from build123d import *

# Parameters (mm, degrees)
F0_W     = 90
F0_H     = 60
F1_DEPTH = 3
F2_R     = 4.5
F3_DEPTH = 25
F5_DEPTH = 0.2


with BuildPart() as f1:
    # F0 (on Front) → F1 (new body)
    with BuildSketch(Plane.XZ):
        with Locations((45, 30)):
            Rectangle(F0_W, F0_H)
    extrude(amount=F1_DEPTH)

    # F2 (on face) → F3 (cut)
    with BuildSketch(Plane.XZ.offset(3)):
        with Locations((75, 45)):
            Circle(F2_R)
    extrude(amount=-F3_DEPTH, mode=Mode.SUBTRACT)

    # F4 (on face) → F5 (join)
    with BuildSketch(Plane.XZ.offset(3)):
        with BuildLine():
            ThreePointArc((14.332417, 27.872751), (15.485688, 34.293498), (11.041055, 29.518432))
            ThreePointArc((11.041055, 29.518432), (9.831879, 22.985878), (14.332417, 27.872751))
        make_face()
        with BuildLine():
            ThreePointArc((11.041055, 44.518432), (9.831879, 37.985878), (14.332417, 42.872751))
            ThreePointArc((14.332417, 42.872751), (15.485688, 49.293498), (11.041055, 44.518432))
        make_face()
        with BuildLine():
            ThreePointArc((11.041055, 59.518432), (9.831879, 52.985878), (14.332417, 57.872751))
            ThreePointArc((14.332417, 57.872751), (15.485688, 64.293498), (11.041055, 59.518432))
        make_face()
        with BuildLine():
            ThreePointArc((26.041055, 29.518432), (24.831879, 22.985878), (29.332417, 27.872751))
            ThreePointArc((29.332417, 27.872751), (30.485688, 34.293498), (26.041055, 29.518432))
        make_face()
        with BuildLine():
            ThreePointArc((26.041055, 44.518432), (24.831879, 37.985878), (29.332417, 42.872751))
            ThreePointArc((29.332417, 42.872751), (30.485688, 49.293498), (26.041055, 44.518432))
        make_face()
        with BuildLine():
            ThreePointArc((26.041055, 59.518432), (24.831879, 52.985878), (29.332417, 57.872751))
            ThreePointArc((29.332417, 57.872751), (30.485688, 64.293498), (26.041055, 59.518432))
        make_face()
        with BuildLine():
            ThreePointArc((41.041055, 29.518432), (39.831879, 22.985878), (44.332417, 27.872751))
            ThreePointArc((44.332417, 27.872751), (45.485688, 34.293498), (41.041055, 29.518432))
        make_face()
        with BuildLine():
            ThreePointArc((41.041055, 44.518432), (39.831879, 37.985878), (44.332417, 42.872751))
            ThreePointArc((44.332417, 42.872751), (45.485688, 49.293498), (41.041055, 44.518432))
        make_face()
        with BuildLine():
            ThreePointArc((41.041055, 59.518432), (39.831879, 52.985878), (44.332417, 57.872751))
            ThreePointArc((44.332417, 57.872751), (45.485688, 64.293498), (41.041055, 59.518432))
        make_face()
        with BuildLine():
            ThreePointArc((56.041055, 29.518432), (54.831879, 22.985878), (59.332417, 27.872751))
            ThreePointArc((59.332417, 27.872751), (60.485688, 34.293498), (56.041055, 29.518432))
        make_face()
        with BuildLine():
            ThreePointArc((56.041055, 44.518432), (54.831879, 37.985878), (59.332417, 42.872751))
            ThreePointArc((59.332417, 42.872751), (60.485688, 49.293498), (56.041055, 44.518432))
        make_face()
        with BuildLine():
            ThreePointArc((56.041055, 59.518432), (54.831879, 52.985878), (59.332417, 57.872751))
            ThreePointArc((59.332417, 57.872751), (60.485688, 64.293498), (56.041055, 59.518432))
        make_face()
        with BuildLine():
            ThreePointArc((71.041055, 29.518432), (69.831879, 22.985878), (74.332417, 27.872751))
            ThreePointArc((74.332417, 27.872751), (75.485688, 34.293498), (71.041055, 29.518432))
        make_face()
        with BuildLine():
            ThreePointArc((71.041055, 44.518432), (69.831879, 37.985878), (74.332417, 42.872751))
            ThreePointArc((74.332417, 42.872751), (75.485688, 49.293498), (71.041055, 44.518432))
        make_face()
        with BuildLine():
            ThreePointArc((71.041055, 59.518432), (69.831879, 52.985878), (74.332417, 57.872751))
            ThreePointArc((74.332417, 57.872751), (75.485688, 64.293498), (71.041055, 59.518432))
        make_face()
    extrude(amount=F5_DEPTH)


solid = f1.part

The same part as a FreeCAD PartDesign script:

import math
import FreeCAD as App
import Part
import Sketcher
from FreeCAD import Vector

doc = App.newDocument("Part")
body = doc.addObject("PartDesign::Body", "Body")

# Sketch on XZ plane
sketch1 = doc.addObject("Sketcher::SketchObject", "Sketch")
body.addObject(sketch1)
sketch1.AttachmentSupport = (doc.XZ_Plane, [""])
sketch1.MapMode = "FlatFace"
sketch1.addGeometry([
    Part.LineSegment(Vector(0, 60, 0), Vector(0, 0, 0)),
    Part.LineSegment(Vector(0, 0, 0), Vector(90, 0, 0)),
    Part.LineSegment(Vector(90, 0, 0), Vector(90, 60, 0)),
    Part.LineSegment(Vector(90, 60, 0), Vector(0, 60, 0)),
], False)
sketch1.addConstraint([
    Sketcher.Constraint("Coincident", 0, 2, 1, 1),
    Sketcher.Constraint("Coincident", 1, 2, 2, 1),
    Sketcher.Constraint("Coincident", 2, 2, 3, 1),
    Sketcher.Constraint("Coincident", 3, 2, 0, 1),
    Sketcher.Constraint("Vertical", 0),
    Sketcher.Constraint("Horizontal", 1),
    Sketcher.Constraint("Vertical", 2),
    Sketcher.Constraint("Horizontal", 3),
    Sketcher.Constraint("Coincident", 0, 2, -1, 1),
    Sketcher.Constraint("DistanceX", 1, 1, 1, 2, 90.0),
    Sketcher.Constraint("DistanceY", 0, 2, 0, 1, 60.0),
])
pad1 = doc.addObject("PartDesign::Pad", "Pad")
body.addObject(pad1)
pad1.Profile = sketch1
pad1.Length = 3

# Sketch on XZ plane
sketch2 = doc.addObject("Sketcher::SketchObject", "Sketch001")
body.addObject(sketch2)
sketch2.AttachmentSupport = (doc.XZ_Plane, [""])
sketch2.MapMode = "FlatFace"
sketch2.AttachmentOffset = App.Placement(Vector(0, 0, 3), App.Rotation())
sketch2.addGeometry(Part.Circle(Vector(75, 45, 0), Vector(0, 0, 1), 4.5), False)
sketch2.addConstraint([
    Sketcher.Constraint("Diameter", 0, 9.0),
    Sketcher.Constraint("DistanceX", -1, 1, 0, 3, 75.0),
    Sketcher.Constraint("DistanceY", -1, 1, 0, 3, 45.0),
])
pocket1 = doc.addObject("PartDesign::Pocket", "Pocket")
body.addObject(pocket1)
pocket1.Profile = sketch2
pocket1.Length = 25

# Sketch on XZ plane
sketch3 = doc.addObject("Sketcher::SketchObject", "Sketch002")
body.addObject(sketch3)
sketch3.AttachmentSupport = (doc.XZ_Plane, [""])
sketch3.MapMode = "FlatFace"
sketch3.AttachmentOffset = App.Placement(Vector(0, 0, 3), App.Rotation())
sketch3.addGeometry([
    Part.ArcOfCircle(Part.Circle(Vector(14, 31.3, 0), Vector(0, 0, 1), 3.4), math.radians(-84), math.radians(211)),  # 0
    Part.ArcOfCircle(Part.Circle(Vector(11.4, 26.1, 0), Vector(0, 0, 1), 3.5), math.radians(96), math.radians(391)),  # 1
    Part.ArcOfCircle(Part.Circle(Vector(11.4, 41.1, 0), Vector(0, 0, 1), 3.5), math.radians(96), math.radians(391)),  # 2
    Part.ArcOfCircle(Part.Circle(Vector(14, 46.3, 0), Vector(0, 0, 1), 3.4), math.radians(-84), math.radians(211)),  # 3
    Part.ArcOfCircle(Part.Circle(Vector(11.4, 56.1, 0), Vector(0, 0, 1), 3.5), math.radians(96), math.radians(391)),  # 4
    Part.ArcOfCircle(Part.Circle(Vector(14, 61.3, 0), Vector(0, 0, 1), 3.4), math.radians(-84), math.radians(211)),  # 5
    Part.ArcOfCircle(Part.Circle(Vector(26.4, 26.1, 0), Vector(0, 0, 1), 3.5), math.radians(96), math.radians(391)),  # 6
    Part.ArcOfCircle(Part.Circle(Vector(29, 31.3, 0), Vector(0, 0, 1), 3.4), math.radians(-84), math.radians(211)),  # 7
    Part.ArcOfCircle(Part.Circle(Vector(26.4, 41.1, 0), Vector(0, 0, 1), 3.5), math.radians(96), math.radians(391)),  # 8
    Part.ArcOfCircle(Part.Circle(Vector(29, 46.3, 0), Vector(0, 0, 1), 3.4), math.radians(-84), math.radians(211)),  # 9
    Part.ArcOfCircle(Part.Circle(Vector(26.4, 56.1, 0), Vector(0, 0, 1), 3.5), math.radians(96), math.radians(391)),  # 10
    Part.ArcOfCircle(Part.Circle(Vector(29, 61.3, 0), Vector(0, 0, 1), 3.4), math.radians(-84), math.radians(211)),  # 11
    Part.ArcOfCircle(Part.Circle(Vector(41.4, 26.1, 0), Vector(0, 0, 1), 3.5), math.radians(96), math.radians(391)),  # 12
    Part.ArcOfCircle(Part.Circle(Vector(44, 31.3, 0), Vector(0, 0, 1), 3.4), math.radians(-84), math.radians(211)),  # 13
    Part.ArcOfCircle(Part.Circle(Vector(41.4, 41.1, 0), Vector(0, 0, 1), 3.5), math.radians(96), math.radians(391)),  # 14
    Part.ArcOfCircle(Part.Circle(Vector(44, 46.3, 0), Vector(0, 0, 1), 3.4), math.radians(-84), math.radians(211)),  # 15
    Part.ArcOfCircle(Part.Circle(Vector(41.4, 56.1, 0), Vector(0, 0, 1), 3.5), math.radians(96), math.radians(391)),  # 16
    Part.ArcOfCircle(Part.Circle(Vector(44, 61.3, 0), Vector(0, 0, 1), 3.4), math.radians(-84), math.radians(211)),  # 17
    Part.ArcOfCircle(Part.Circle(Vector(56.4, 26.1, 0), Vector(0, 0, 1), 3.5), math.radians(96), math.radians(391)),  # 18
    Part.ArcOfCircle(Part.Circle(Vector(59, 31.3, 0), Vector(0, 0, 1), 3.4), math.radians(-84), math.radians(211)),  # 19
    Part.ArcOfCircle(Part.Circle(Vector(56.4, 41.1, 0), Vector(0, 0, 1), 3.5), math.radians(96), math.radians(391)),  # 20
    Part.ArcOfCircle(Part.Circle(Vector(59, 46.3, 0), Vector(0, 0, 1), 3.4), math.radians(-84), math.radians(211)),  # 21
    Part.ArcOfCircle(Part.Circle(Vector(56.4, 56.1, 0), Vector(0, 0, 1), 3.5), math.radians(96), math.radians(391)),  # 22
    Part.ArcOfCircle(Part.Circle(Vector(59, 61.3, 0), Vector(0, 0, 1), 3.4), math.radians(-84), math.radians(211)),  # 23
    Part.ArcOfCircle(Part.Circle(Vector(71.4, 26.1, 0), Vector(0, 0, 1), 3.5), math.radians(96), math.radians(391)),  # 24
    Part.ArcOfCircle(Part.Circle(Vector(74, 31.3, 0), Vector(0, 0, 1), 3.4), math.radians(-84), math.radians(211)),  # 25
    Part.ArcOfCircle(Part.Circle(Vector(71.4, 41.1, 0), Vector(0, 0, 1), 3.5), math.radians(96), math.radians(391)),  # 26
    Part.ArcOfCircle(Part.Circle(Vector(74, 46.3, 0), Vector(0, 0, 1), 3.4), math.radians(-84), math.radians(211)),  # 27
    Part.ArcOfCircle(Part.Circle(Vector(71.4, 56.1, 0), Vector(0, 0, 1), 3.5), math.radians(96), math.radians(391)),  # 28
    Part.ArcOfCircle(Part.Circle(Vector(74, 61.3, 0), Vector(0, 0, 1), 3.4), math.radians(-84), math.radians(211)),  # 29
], False)
sketch3.addConstraint([
    Sketcher.Constraint("Coincident", 0, 1, 1, 2),
    Sketcher.Constraint("Coincident", 1, 1, 0, 2),
    Sketcher.Constraint("Coincident", 2, 1, 3, 2),
    Sketcher.Constraint("Coincident", 3, 1, 2, 2),
    Sketcher.Constraint("Coincident", 4, 1, 5, 2),
    Sketcher.Constraint("Coincident", 5, 1, 4, 2),
    Sketcher.Constraint("Coincident", 6, 1, 7, 2),
    Sketcher.Constraint("Coincident", 7, 1, 6, 2),
    Sketcher.Constraint("Coincident", 8, 1, 9, 2),
    Sketcher.Constraint("Coincident", 9, 1, 8, 2),
    Sketcher.Constraint("Coincident", 10, 1, 11, 2),
    Sketcher.Constraint("Coincident", 11, 1, 10, 2),
    Sketcher.Constraint("Coincident", 12, 1, 13, 2),
    Sketcher.Constraint("Coincident", 13, 1, 12, 2),
    Sketcher.Constraint("Coincident", 14, 1, 15, 2),
    Sketcher.Constraint("Coincident", 15, 1, 14, 2),
    Sketcher.Constraint("Coincident", 16, 1, 17, 2),
    Sketcher.Constraint("Coincident", 17, 1, 16, 2),
    Sketcher.Constraint("Coincident", 18, 1, 19, 2),
    Sketcher.Constraint("Coincident", 19, 1, 18, 2),
    Sketcher.Constraint("Coincident", 20, 1, 21, 2),
    Sketcher.Constraint("Coincident", 21, 1, 20, 2),
    Sketcher.Constraint("Coincident", 22, 1, 23, 2),
    Sketcher.Constraint("Coincident", 23, 1, 22, 2),
    Sketcher.Constraint("Coincident", 24, 1, 25, 2),
    Sketcher.Constraint("Coincident", 25, 1, 24, 2),
    Sketcher.Constraint("Coincident", 26, 1, 27, 2),
    Sketcher.Constraint("Coincident", 27, 1, 26, 2),
    Sketcher.Constraint("Coincident", 28, 1, 29, 2),
    Sketcher.Constraint("Coincident", 29, 1, 28, 2),
    Sketcher.Constraint("Equal", 1, 2),
    Sketcher.Constraint("Equal", 0, 3),
    Sketcher.Constraint("Equal", 2, 4),
    Sketcher.Constraint("Equal", 3, 5),
    Sketcher.Constraint("Equal", 4, 6),
    Sketcher.Constraint("Equal", 5, 7),
    Sketcher.Constraint("Equal", 6, 8),
    Sketcher.Constraint("Equal", 7, 9),
    Sketcher.Constraint("Equal", 8, 10),
    Sketcher.Constraint("Equal", 9, 11),
    Sketcher.Constraint("Equal", 10, 12),
    Sketcher.Constraint("Equal", 11, 13),
    Sketcher.Constraint("Equal", 12, 14),
    Sketcher.Constraint("Equal", 13, 15),
    Sketcher.Constraint("Equal", 14, 16),
    Sketcher.Constraint("Equal", 15, 17),
    Sketcher.Constraint("Equal", 16, 18),
    Sketcher.Constraint("Equal", 17, 19),
    Sketcher.Constraint("Equal", 18, 20),
    Sketcher.Constraint("Equal", 19, 21),
    Sketcher.Constraint("Equal", 20, 22),
    Sketcher.Constraint("Equal", 21, 23),
    Sketcher.Constraint("Equal", 22, 24),
    Sketcher.Constraint("Equal", 23, 25),
    Sketcher.Constraint("Equal", 24, 26),
    Sketcher.Constraint("Equal", 25, 27),
    Sketcher.Constraint("Equal", 26, 28),
    Sketcher.Constraint("Equal", 27, 29),
    Sketcher.Constraint("Horizontal", 1, 3, 6, 3),
    Sketcher.Constraint("Horizontal", 0, 3, 7, 3),
    Sketcher.Constraint("Horizontal", 2, 3, 8, 3),
    Sketcher.Constraint("Horizontal", 3, 3, 9, 3),
    Sketcher.Constraint("Horizontal", 4, 3, 10, 3),
    Sketcher.Constraint("Horizontal", 5, 3, 11, 3),
    Sketcher.Constraint("Horizontal", 6, 3, 12, 3),
    Sketcher.Constraint("Horizontal", 7, 3, 13, 3),
    Sketcher.Constraint("Horizontal", 8, 3, 14, 3),
    Sketcher.Constraint("Horizontal", 9, 3, 15, 3),
    Sketcher.Constraint("Horizontal", 10, 3, 16, 3),
    Sketcher.Constraint("Horizontal", 11, 3, 17, 3),
    Sketcher.Constraint("Horizontal", 12, 3, 18, 3),
    Sketcher.Constraint("Horizontal", 13, 3, 19, 3),
    Sketcher.Constraint("Horizontal", 14, 3, 20, 3),
    Sketcher.Constraint("Horizontal", 15, 3, 21, 3),
    Sketcher.Constraint("Horizontal", 16, 3, 22, 3),
    Sketcher.Constraint("Horizontal", 17, 3, 23, 3),
    Sketcher.Constraint("Horizontal", 18, 3, 24, 3),
    Sketcher.Constraint("Horizontal", 19, 3, 25, 3),
    Sketcher.Constraint("Horizontal", 20, 3, 26, 3),
    Sketcher.Constraint("Horizontal", 21, 3, 27, 3),
    Sketcher.Constraint("Horizontal", 22, 3, 28, 3),
    Sketcher.Constraint("Horizontal", 23, 3, 29, 3),
    Sketcher.Constraint("Horizontal", 1, 1, 6, 1),
    Sketcher.Constraint("Horizontal", 2, 1, 8, 1),
    Sketcher.Constraint("Horizontal", 4, 1, 10, 1),
    Sketcher.Constraint("Horizontal", 6, 1, 12, 1),
    Sketcher.Constraint("Horizontal", 8, 1, 14, 1),
    Sketcher.Constraint("Horizontal", 10, 1, 16, 1),
    Sketcher.Constraint("Horizontal", 12, 1, 18, 1),
    Sketcher.Constraint("Horizontal", 14, 1, 20, 1),
    Sketcher.Constraint("Horizontal", 16, 1, 22, 1),
    Sketcher.Constraint("Horizontal", 18, 1, 24, 1),
    Sketcher.Constraint("Horizontal", 20, 1, 26, 1),
    Sketcher.Constraint("Horizontal", 22, 1, 28, 1),
    Sketcher.Constraint("Vertical", 1, 3, 2, 3),
    Sketcher.Constraint("Vertical", 0, 3, 3, 3),
    Sketcher.Constraint("Vertical", 2, 3, 4, 3),
    Sketcher.Constraint("Vertical", 3, 3, 5, 3),
    Sketcher.Constraint("Vertical", 6, 3, 8, 3),
    Sketcher.Constraint("Vertical", 8, 3, 10, 3),
    Sketcher.Constraint("Vertical", 12, 3, 14, 3),
    Sketcher.Constraint("Vertical", 14, 3, 16, 3),
    Sketcher.Constraint("Vertical", 18, 3, 20, 3),
    Sketcher.Constraint("Vertical", 20, 3, 22, 3),
    Sketcher.Constraint("Vertical", 24, 3, 26, 3),
    Sketcher.Constraint("Vertical", 26, 3, 28, 3),
    Sketcher.Constraint("Vertical", 1, 1, 2, 1),
    Sketcher.Constraint("Vertical", 2, 1, 4, 1),
    Sketcher.Constraint("DistanceY", 1, 3, 2, 3, 15.0),
    Sketcher.Constraint("DistanceY", 2, 3, 4, 3, 15.0),
    Sketcher.Constraint("DistanceX", 1, 3, 6, 3, 15.0),
    Sketcher.Constraint("DistanceX", 6, 3, 12, 3, 15.0),
    Sketcher.Constraint("DistanceX", 12, 3, 18, 3, 15.0),
    Sketcher.Constraint("DistanceX", 18, 3, 24, 3, 15.0),
    Sketcher.Constraint("Radius", 0, 3.399777),
    Sketcher.Constraint("Radius", 1, 3.456983),
    Sketcher.Constraint("DistanceX", -1, 1, 1, 3, 11.377889),
    Sketcher.Constraint("DistanceY", -1, 1, 0, 1, 27.872751),
    Sketcher.Constraint("DistanceX", 1, 1, 0, 1, 3.291362),
    Sketcher.Constraint("DistanceY", 0, 1, 1, 1, 1.645681),
])
pad2 = doc.addObject("PartDesign::Pad", "Pad001")
body.addObject(pad2)
pad2.Profile = sketch3
pad2.Length = 0.2

doc.recompute()
